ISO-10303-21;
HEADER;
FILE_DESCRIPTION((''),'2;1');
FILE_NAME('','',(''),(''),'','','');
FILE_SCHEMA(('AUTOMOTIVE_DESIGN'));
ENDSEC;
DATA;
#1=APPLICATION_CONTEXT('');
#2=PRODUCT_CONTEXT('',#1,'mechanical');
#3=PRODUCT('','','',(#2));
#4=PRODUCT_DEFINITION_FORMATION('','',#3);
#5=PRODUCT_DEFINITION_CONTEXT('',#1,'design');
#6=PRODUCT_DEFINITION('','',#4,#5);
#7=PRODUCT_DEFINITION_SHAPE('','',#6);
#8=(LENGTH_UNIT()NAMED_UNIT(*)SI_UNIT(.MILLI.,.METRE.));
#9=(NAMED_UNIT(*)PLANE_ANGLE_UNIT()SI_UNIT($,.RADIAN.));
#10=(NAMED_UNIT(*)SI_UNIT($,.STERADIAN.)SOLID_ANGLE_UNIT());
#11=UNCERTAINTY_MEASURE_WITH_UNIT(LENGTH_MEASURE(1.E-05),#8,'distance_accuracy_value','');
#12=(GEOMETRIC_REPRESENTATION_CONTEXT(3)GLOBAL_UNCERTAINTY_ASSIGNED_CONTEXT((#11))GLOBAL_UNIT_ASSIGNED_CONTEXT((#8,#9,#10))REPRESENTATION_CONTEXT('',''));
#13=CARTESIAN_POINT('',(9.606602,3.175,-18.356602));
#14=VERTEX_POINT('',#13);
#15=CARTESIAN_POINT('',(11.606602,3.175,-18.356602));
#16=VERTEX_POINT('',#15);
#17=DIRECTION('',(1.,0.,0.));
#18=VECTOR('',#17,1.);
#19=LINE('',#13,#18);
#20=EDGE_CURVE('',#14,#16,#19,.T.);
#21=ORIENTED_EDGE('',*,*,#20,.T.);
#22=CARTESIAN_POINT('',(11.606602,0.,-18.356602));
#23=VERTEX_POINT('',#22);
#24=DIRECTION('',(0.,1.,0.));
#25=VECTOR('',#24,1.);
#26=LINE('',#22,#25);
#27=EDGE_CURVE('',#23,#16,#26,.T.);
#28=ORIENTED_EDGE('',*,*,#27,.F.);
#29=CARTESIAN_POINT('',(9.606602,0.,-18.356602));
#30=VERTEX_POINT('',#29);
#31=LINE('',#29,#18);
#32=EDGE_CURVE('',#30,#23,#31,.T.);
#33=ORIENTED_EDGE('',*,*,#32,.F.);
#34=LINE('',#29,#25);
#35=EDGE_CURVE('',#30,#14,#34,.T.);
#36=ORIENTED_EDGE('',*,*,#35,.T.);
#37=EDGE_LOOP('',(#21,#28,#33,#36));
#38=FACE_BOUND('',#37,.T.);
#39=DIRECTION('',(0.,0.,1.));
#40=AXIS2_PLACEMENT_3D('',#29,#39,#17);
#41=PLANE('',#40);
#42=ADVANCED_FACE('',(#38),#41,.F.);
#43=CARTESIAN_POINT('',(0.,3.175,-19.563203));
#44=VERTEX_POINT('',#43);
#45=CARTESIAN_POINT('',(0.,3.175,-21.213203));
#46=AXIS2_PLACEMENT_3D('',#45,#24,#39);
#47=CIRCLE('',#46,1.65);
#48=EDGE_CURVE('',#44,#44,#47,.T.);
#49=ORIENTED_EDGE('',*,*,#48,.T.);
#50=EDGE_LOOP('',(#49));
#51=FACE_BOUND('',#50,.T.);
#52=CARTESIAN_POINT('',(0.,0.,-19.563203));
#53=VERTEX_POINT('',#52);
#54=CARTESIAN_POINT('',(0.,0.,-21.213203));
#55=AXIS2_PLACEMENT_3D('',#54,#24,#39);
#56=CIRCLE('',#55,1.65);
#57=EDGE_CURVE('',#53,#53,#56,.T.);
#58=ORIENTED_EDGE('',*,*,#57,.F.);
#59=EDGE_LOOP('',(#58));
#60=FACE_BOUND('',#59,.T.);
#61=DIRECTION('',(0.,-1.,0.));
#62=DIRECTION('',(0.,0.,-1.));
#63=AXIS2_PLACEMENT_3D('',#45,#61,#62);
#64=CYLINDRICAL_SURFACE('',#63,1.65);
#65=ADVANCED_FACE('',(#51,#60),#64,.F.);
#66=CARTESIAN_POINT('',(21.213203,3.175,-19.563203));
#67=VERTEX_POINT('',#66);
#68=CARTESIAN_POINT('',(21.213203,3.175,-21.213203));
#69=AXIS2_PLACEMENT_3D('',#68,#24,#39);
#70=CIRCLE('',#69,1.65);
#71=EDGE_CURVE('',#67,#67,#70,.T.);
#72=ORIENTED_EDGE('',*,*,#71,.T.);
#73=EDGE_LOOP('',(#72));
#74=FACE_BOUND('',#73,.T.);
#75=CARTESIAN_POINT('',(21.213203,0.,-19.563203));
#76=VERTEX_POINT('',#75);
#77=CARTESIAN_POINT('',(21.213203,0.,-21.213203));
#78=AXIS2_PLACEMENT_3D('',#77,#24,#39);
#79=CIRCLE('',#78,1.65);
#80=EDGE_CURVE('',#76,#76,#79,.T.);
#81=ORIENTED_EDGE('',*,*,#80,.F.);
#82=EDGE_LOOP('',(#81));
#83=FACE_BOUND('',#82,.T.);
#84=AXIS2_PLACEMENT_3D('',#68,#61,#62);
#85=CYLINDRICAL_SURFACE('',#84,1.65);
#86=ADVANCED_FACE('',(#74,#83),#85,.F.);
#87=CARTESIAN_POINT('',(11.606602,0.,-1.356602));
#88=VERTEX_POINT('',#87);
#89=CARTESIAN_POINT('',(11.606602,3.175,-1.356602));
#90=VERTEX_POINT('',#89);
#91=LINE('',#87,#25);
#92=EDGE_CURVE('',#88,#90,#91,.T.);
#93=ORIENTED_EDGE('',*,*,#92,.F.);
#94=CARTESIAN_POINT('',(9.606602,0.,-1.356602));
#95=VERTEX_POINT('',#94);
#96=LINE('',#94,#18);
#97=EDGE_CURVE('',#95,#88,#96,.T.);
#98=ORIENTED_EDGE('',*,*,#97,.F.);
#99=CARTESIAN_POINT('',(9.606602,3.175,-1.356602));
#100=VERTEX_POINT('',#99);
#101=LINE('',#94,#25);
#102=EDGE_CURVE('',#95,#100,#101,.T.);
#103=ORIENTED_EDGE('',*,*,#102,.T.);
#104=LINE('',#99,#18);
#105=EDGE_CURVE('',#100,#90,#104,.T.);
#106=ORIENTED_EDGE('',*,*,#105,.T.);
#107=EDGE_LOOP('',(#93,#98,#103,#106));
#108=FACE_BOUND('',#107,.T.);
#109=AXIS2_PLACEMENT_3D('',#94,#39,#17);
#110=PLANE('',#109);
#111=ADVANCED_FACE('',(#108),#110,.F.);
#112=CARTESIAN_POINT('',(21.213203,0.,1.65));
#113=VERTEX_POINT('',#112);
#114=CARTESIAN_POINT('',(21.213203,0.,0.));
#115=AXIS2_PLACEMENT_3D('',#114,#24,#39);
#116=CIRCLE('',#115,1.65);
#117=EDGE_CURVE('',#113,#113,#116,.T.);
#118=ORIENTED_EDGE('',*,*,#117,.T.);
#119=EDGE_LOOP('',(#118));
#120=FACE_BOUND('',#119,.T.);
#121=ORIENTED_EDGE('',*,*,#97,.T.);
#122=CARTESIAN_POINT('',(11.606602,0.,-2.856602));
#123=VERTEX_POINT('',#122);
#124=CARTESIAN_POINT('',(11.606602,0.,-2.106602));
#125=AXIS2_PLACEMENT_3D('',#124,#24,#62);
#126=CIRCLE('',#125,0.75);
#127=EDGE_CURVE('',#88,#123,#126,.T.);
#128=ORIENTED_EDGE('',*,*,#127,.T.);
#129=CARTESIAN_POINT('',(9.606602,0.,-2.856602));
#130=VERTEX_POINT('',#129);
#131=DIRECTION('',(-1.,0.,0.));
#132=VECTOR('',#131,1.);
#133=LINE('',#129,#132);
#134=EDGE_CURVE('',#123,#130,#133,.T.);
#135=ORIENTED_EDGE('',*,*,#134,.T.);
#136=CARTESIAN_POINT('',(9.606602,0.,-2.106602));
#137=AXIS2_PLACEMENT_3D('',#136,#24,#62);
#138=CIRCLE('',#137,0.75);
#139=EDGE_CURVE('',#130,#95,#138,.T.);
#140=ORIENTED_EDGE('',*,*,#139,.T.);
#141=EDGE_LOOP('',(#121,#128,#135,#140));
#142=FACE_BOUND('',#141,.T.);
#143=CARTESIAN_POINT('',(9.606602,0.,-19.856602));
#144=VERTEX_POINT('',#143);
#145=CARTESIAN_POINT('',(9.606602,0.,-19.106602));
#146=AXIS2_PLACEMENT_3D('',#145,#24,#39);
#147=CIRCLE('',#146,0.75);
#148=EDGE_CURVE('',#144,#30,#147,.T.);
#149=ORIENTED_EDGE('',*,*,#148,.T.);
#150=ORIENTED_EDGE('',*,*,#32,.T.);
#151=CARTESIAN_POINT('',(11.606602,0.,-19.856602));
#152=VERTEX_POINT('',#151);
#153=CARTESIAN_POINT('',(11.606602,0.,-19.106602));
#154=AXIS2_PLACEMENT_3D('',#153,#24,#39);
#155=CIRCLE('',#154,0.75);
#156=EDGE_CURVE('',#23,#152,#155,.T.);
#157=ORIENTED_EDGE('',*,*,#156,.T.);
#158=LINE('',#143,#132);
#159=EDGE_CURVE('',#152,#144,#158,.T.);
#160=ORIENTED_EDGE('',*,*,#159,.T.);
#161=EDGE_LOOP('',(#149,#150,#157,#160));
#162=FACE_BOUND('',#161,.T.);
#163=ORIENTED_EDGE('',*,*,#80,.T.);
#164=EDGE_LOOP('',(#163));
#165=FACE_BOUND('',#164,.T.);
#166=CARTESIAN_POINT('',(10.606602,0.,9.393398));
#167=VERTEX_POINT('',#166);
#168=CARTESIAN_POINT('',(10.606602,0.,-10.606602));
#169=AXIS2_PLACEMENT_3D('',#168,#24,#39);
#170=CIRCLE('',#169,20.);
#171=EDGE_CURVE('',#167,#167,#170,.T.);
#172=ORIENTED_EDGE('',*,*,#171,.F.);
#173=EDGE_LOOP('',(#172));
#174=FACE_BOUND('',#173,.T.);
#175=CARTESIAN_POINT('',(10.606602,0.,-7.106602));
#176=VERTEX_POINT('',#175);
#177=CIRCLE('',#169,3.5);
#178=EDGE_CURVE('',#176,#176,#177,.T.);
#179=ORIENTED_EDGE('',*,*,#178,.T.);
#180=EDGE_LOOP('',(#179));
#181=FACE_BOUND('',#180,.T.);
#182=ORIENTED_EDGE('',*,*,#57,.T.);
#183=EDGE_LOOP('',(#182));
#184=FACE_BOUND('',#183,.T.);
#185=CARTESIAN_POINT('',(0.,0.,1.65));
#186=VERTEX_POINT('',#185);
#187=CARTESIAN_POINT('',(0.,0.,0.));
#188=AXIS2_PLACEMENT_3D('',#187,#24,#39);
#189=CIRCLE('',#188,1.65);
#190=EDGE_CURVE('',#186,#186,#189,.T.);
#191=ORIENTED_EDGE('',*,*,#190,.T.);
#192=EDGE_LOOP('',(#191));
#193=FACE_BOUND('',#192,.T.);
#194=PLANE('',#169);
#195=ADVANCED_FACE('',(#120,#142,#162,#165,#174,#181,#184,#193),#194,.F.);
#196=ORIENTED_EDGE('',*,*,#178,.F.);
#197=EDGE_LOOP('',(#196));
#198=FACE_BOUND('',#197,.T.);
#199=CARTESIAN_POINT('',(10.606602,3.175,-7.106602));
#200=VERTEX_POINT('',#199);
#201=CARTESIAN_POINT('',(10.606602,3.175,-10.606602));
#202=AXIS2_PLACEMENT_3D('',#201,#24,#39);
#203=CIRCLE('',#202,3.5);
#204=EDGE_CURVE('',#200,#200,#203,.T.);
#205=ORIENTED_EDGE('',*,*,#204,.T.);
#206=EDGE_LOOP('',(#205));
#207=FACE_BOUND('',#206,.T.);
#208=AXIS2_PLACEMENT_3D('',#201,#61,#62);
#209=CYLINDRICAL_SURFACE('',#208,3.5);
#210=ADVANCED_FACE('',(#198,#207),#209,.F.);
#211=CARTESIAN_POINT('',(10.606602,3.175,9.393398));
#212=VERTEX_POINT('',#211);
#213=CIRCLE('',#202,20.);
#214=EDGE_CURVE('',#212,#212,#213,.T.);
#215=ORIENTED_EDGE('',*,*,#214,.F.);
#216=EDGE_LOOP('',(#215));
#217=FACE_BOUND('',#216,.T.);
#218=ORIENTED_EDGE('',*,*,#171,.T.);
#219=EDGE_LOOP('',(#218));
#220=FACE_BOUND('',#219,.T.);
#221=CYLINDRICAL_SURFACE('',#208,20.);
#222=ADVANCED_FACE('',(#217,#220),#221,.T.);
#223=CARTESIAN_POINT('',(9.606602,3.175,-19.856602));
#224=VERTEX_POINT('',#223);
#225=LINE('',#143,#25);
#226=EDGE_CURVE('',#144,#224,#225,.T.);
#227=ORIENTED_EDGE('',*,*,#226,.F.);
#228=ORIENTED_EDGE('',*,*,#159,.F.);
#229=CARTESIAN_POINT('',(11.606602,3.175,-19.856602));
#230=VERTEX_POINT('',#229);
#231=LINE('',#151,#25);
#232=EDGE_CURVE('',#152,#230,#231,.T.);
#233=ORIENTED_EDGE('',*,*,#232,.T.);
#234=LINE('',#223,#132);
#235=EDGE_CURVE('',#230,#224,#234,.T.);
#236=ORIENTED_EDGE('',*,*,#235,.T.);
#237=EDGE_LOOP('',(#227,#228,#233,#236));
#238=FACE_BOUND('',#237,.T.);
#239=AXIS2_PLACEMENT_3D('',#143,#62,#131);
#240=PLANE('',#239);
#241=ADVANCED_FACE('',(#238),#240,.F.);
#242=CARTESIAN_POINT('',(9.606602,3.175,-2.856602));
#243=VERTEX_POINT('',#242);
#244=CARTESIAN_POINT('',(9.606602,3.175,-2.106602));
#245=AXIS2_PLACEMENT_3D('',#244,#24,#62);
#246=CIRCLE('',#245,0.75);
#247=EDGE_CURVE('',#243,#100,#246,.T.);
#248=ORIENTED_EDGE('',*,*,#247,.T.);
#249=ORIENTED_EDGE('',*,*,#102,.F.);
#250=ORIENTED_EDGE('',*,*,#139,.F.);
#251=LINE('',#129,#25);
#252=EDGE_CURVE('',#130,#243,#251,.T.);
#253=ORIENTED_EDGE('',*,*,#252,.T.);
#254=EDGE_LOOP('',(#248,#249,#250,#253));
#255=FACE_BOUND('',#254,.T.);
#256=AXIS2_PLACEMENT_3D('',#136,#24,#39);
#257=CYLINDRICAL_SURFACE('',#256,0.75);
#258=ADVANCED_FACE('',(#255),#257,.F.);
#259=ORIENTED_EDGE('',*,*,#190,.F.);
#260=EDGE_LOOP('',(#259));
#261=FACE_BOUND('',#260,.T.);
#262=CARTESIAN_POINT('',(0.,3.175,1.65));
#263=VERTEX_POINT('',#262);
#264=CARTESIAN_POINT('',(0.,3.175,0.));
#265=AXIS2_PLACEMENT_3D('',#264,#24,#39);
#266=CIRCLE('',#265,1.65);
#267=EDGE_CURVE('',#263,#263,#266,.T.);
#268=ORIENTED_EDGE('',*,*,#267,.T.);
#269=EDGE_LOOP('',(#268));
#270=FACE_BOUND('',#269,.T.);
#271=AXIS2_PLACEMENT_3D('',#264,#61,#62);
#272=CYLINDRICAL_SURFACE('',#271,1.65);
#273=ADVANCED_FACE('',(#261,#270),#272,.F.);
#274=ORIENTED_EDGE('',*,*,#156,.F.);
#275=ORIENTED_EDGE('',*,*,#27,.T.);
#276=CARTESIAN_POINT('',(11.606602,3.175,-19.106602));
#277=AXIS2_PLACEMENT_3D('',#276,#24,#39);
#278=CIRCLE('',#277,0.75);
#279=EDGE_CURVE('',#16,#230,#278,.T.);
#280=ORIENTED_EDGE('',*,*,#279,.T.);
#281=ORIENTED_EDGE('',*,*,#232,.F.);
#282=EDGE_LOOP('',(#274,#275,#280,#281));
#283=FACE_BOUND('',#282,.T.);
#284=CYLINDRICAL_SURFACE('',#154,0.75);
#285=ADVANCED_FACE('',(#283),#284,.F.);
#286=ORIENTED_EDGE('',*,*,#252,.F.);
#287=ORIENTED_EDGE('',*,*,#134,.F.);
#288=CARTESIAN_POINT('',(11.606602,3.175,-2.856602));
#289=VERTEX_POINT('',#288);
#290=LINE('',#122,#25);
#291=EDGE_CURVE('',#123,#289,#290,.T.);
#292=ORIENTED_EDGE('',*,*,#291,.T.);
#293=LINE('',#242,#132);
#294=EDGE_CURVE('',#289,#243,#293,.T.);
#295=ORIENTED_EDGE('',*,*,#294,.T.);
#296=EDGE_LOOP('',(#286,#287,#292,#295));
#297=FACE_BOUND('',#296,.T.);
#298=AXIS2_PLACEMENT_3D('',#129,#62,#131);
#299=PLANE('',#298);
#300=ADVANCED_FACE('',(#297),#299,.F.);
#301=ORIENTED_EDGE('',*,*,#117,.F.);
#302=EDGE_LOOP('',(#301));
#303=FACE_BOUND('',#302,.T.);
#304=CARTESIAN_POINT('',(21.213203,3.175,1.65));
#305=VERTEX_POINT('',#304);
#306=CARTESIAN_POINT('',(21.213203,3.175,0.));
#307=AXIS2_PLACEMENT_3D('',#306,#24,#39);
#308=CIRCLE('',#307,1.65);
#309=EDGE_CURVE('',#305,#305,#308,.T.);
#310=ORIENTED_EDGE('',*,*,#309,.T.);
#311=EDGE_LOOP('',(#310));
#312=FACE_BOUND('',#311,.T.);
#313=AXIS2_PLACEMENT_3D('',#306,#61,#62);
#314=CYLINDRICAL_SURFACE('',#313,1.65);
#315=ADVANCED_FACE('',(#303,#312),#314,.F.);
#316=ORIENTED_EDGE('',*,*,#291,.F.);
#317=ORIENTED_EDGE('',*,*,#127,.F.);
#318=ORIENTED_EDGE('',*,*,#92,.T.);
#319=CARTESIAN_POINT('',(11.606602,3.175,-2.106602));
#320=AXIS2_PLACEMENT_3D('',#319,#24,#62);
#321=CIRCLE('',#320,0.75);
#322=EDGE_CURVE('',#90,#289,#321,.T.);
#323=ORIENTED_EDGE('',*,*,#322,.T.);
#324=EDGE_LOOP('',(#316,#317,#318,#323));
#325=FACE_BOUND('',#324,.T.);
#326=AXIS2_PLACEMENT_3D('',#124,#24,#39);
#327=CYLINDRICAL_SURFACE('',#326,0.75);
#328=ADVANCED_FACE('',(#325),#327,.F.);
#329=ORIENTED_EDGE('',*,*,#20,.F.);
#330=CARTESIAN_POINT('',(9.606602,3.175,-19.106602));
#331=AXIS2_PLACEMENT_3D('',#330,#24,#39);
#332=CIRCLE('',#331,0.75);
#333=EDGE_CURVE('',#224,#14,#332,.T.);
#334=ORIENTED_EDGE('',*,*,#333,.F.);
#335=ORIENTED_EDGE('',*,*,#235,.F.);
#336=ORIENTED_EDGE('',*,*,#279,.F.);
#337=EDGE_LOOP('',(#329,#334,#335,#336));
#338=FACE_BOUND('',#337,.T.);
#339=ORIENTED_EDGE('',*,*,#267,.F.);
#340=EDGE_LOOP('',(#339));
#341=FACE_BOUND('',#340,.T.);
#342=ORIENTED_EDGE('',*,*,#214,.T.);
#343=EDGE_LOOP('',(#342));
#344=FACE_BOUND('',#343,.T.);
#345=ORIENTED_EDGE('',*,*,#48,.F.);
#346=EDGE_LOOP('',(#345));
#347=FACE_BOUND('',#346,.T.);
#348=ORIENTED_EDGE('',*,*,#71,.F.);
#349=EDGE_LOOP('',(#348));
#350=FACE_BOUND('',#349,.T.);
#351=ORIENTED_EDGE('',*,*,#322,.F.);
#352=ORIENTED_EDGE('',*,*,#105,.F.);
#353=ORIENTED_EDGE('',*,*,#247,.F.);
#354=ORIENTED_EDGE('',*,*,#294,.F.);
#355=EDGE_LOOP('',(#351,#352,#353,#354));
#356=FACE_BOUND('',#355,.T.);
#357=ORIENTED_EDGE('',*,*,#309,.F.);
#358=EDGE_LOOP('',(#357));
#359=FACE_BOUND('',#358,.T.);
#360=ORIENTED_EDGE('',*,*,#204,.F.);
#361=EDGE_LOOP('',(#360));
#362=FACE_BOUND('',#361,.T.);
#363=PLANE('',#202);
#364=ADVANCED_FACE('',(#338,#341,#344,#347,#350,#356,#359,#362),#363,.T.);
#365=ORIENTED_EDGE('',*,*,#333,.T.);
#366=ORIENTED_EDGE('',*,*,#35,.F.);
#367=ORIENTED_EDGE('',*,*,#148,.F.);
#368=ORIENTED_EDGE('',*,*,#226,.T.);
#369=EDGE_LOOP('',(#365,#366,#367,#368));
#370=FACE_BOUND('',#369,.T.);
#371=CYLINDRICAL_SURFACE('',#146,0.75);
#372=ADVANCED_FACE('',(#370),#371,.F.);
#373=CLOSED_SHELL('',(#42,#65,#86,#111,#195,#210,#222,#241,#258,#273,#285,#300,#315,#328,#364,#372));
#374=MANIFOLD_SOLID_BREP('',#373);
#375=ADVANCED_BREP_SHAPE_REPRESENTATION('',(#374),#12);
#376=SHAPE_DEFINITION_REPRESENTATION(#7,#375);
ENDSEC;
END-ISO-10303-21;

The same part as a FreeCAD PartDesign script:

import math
import FreeCAD as App
import Part
import Sketcher
Q = App.Units.Quantity

doc = App.newDocument("Part")
body = doc.addObject("PartDesign::Body", "Body")

# Sketch on XZ plane
sketch1 = body.newObject("Sketcher::SketchObject", "Sketch")
sketch1.AttachmentSupport = (doc.getObject("XZ_Plane"), [""])
sketch1.MapMode = "FlatFace"
sketch1.addGeometry([
    Part.Circle(App.Vector(10.6, -10.6, 0), App.Vector(0, 0, 1), 20),  # 0
    Part.Circle(App.Vector(0, -21.2, 0), App.Vector(0, 0, 1), 1.6),  # 1
    Part.Circle(App.Vector(0, 0, 0), App.Vector(0, 0, 1), 1.6),  # 2
    Part.Circle(App.Vector(21.2, -21.2, 0), App.Vector(0, 0, 1), 1.6),  # 3
    Part.Circle(App.Vector(10.6, -10.6, 0), App.Vector(0, 0, 1), 3.5),  # 4
    Part.Circle(App.Vector(21.2, 0, 0), App.Vector(0, 0, 1), 1.6),  # 5
], False)
sketch1.addConstraint([
    Sketcher.Constraint("Coincident", 2, 3, -1, 1),
    Sketcher.Constraint("Coincident", 4, 3, 0, 3),
    Sketcher.Constraint("Equal", 1, 2),
    Sketcher.Constraint("Equal", 2, 3),
    Sketcher.Constraint("Equal", 3, 5),
    Sketcher.Constraint("PointOnObject", 1, 3, -2),
    Sketcher.Constraint("PointOnObject", 5, 3, -1),
    Sketcher.Constraint("Horizontal", 1, 3, 3, 3),
    Sketcher.Constraint("Vertical", 3, 3, 5, 3),
    Sketcher.Constraint("Diameter", 0, Q("40 mm")),
    Sketcher.Constraint("Diameter", 4, Q("7 mm")),
    Sketcher.Constraint("Diameter", 1, Q("3.3 mm")),
    Sketcher.Constraint("DistanceX", -1, 1, 0, 3, Q("10.606602 mm")),
    Sketcher.Constraint("DistanceY", 0, 3, -1, 1, Q("10.606602 mm")),
    Sketcher.Constraint("DistanceY", 1, 3, 0, 3, Q("10.606602 mm")),
    Sketcher.Constraint("DistanceX", 0, 3, 3, 3, Q("10.606602 mm")),
])
pad1 = body.newObject("PartDesign::Pad", "Pad")
pad1.Profile = sketch1
pad1.Length = 3.175
pad1.Reversed = True

# Sketch on XZ plane
sketch2 = body.newObject("Sketcher::SketchObject", "Sketch001")
sketch2.AttachmentSupport = (doc.getObject("XZ_Plane"), [""])
sketch2.MapMode = "FlatFace"
sketch2.AttachmentOffset = App.Placement(App.Vector(0, 0, -3.175), App.Rotation())
sketch2.addGeometry([
    Part.LineSegment(App.Vector(11.6, -19.9, 0), App.Vector(9.6, -19.9, 0)),  # 0
    Part.ArcOfCircle(Part.Circle(App.Vector(9.6, -19.1, 0), App.Vector(0, 0, 1), 0.8), math.radians(90), math.radians(270)),  # 1
    Part.LineSegment(App.Vector(9.6, -18.4, 0), App.Vector(11.6, -18.4, 0)),  # 2
    Part.ArcOfCircle(Part.Circle(App.Vector(11.6, -19.1, 0), App.Vector(0, 0, 1), 0.8), math.radians(-90), math.radians(90)),  # 3
    Part.LineSegment(App.Vector(9.6, -1.4, 0), App.Vector(11.6, -1.4, 0)),  # 4
    Part.ArcOfCircle(Part.Circle(App.Vector(11.6, -2.1, 0), App.Vector(0, 0, 1), 0.8), math.radians(-90), math.radians(90)),  # 5
    Part.LineSegment(App.Vector(11.6, -2.9, 0), App.Vector(9.6, -2.9, 0)),  # 6
    Part.ArcOfCircle(Part.Circle(App.Vector(9.6, -2.1, 0), App.Vector(0, 0, 1), 0.8), math.radians(90), math.radians(270)),  # 7
], False)
sketch2.addConstraint([
    Sketcher.Constraint("Tangent", 0, 2, 1, 2),
    Sketcher.Constraint("Tangent", 1, 1, 2, 1),
    Sketcher.Constraint("Tangent", 2, 2, 3, 2),
    Sketcher.Constraint("Tangent", 3, 1, 0, 1),
    Sketcher.Constraint("Tangent", 4, 2, 5, 2),
    Sketcher.Constraint("Tangent", 5, 1, 6, 1),
    Sketcher.Constraint("Tangent", 6, 2, 7, 2),
    Sketcher.Constraint("Tangent", 7, 1, 4, 1),
    Sketcher.Constraint("Horizontal", 0),
    Sketcher.Constraint("Horizontal", 2),
    Sketcher.Constraint("Horizontal", 4),
    Sketcher.Constraint("Horizontal", 6),
    Sketcher.Constraint("Equal", 3, 5),
    Sketcher.Constraint("Vertical", 3, 3, 5, 3),
    Sketcher.Constraint("Vertical", 1, 3, 7, 3),
    Sketcher.Constraint("DistanceX", 0, 2, 0, 1, Q("2 mm")),
    Sketcher.Constraint("Radius", 1, Q("0.75 mm")),
    Sketcher.Constraint("DistanceY", 3, 3, 5, 3, Q("17 mm")),
    Sketcher.Constraint("DistanceX", -1, 1, 1, 3, Q("9.606602 mm")),
    Sketcher.Constraint("DistanceY", 1, 3, -1, 1, Q("19.106602 mm")),
])
pocket1 = body.newObject("PartDesign::Pocket", "Pocket")
pocket1.Profile = sketch2
pocket1.Type = "ThroughAll"
pocket1.Reversed = True

doc.recompute()
